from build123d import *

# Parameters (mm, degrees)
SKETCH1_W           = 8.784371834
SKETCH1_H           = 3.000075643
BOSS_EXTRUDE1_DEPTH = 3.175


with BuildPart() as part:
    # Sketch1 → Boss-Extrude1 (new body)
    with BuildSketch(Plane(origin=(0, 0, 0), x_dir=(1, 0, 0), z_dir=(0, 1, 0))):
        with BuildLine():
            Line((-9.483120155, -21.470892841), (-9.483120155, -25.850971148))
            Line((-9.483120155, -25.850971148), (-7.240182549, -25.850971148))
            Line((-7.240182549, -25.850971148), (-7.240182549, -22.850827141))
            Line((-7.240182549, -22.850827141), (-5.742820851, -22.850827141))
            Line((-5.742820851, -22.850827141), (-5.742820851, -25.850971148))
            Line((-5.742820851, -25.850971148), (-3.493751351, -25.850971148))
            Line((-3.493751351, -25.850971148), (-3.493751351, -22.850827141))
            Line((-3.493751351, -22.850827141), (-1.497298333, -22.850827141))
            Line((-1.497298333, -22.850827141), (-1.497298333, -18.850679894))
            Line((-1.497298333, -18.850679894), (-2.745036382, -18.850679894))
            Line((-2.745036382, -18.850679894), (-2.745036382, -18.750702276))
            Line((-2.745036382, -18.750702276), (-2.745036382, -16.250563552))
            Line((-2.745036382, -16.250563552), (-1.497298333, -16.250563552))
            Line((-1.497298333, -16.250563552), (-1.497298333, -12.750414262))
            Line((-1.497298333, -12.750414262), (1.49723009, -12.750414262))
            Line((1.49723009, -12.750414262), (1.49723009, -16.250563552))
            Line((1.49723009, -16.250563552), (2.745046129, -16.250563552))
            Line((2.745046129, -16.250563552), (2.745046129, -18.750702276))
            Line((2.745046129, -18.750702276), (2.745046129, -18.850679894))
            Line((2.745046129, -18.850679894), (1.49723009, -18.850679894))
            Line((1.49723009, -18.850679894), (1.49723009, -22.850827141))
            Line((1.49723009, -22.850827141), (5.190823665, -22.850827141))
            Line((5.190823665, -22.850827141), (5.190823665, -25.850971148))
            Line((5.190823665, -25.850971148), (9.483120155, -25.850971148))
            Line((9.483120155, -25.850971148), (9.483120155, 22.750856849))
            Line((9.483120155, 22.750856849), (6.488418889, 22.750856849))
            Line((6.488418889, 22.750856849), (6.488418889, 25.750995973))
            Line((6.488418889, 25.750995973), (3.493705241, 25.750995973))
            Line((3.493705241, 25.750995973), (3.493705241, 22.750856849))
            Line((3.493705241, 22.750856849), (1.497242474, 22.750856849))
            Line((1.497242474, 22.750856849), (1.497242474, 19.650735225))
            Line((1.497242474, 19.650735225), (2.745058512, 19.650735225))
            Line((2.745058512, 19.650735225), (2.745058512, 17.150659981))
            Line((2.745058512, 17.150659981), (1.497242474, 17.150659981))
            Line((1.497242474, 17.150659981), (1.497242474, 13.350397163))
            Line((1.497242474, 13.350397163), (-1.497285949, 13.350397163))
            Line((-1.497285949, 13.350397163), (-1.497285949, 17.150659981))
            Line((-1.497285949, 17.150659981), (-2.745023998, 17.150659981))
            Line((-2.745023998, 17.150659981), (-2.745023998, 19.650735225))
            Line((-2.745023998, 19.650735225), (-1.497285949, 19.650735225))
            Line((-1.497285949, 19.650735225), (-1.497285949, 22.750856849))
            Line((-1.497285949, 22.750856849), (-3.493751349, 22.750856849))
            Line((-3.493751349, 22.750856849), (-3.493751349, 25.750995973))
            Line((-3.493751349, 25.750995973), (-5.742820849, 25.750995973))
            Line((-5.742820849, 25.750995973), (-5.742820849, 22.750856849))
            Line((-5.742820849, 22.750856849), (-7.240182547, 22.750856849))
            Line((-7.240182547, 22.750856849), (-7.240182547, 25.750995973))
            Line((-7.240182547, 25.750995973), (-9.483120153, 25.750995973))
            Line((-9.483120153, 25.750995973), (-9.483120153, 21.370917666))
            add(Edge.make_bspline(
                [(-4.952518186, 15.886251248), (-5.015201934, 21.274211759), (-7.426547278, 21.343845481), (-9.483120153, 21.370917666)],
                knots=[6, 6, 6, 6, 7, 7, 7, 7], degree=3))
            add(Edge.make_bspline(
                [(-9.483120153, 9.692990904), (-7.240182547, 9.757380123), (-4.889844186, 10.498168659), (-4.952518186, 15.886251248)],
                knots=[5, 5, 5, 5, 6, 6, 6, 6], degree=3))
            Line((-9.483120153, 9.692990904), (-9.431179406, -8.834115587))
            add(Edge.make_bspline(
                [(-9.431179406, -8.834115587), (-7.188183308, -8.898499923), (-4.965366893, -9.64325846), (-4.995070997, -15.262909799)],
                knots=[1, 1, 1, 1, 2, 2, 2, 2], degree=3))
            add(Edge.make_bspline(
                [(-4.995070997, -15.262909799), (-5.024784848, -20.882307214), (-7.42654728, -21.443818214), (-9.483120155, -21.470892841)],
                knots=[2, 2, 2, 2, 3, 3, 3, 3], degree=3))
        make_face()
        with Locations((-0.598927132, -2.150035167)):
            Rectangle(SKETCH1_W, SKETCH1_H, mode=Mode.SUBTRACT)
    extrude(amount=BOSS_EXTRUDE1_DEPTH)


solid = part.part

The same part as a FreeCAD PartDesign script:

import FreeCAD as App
import Part
import Sketcher
Q = App.Units.Quantity

doc = App.newDocument("Part")
body = doc.addObject("PartDesign::Body", "Body")

# Sketch on XZ plane
sketch1 = doc.addObject("Sketcher::SketchObject", "Sketch")
body.addObject(sketch1)
sketch1.AttachmentSupport = (doc.XZ_Plane, [""])
sketch1.MapMode = "FlatFace"
sketch1.addGeometry(Part.LineSegment(App.Vector(-9.48312, 21.470893, 0), App.Vector(-9.48312, 25.850971, 0)), False)
sketch1.addGeometry(Part.LineSegment(App.Vector(-9.48312, 25.850971, 0), App.Vector(-7.240183, 25.850971, 0)), False)
sketch1.addGeometry(Part.LineSegment(App.Vector(-7.240183, 25.850971, 0), App.Vector(-7.240183, 22.850827, 0)), False)
sketch1.addGeometry(Part.LineSegment(App.Vector(-7.240183, 22.850827, 0), App.Vector(-5.742821, 22.850827, 0)), False)
sketch1.addGeometry(Part.LineSegment(App.Vector(-5.742821, 22.850827, 0), App.Vector(-5.742821, 25.850971, 0)), False)
sketch1.addGeometry(Part.LineSegment(App.Vector(-5.742821, 25.850971, 0), App.Vector(-3.493751, 25.850971, 0)), False)
sketch1.addGeometry(Part.LineSegment(App.Vector(-3.493751, 25.850971, 0), App.Vector(-3.493751, 22.850827, 0)), False)
sketch1.addGeometry(Part.LineSegment(App.Vector(-3.493751, 22.850827, 0), App.Vector(-1.497298, 22.850827, 0)), False)
sketch1.addGeometry(Part.LineSegment(App.Vector(-1.497298, 22.850827, 0), App.Vector(-1.497298, 18.85068, 0)), False)
sketch1.addGeometry(Part.LineSegment(App.Vector(-1.497298, 18.85068, 0), App.Vector(-2.745036, 18.85068, 0)), False)
sketch1.addGeometry(Part.LineSegment(App.Vector(-2.745036, 18.85068, 0), App.Vector(-2.745036, 16.250564, 0)), False)
sketch1.addGeometry(Part.LineSegment(App.Vector(-2.745036, 16.250564, 0), App.Vector(-1.497298, 16.250564, 0)), False)
sketch1.addGeometry(Part.LineSegment(App.Vector(-1.497298, 16.250564, 0), App.Vector(-1.497298, 12.750414, 0)), False)
sketch1.addGeometry(Part.LineSegment(App.Vector(-1.497298, 12.750414, 0), App.Vector(1.49723, 12.750414, 0)), False)
sketch1.addGeometry(Part.LineSegment(App.Vector(1.49723, 12.750414, 0), App.Vector(1.49723, 16.250564, 0)), False)
sketch1.addGeometry(Part.LineSegment(App.Vector(1.49723, 16.250564, 0), App.Vector(2.745046, 16.250564, 0)), False)
sketch1.addGeometry(Part.LineSegment(App.Vector(2.745046, 16.250564, 0), App.Vector(2.745046, 18.85068, 0)), False)
sketch1.addGeometry(Part.LineSegment(App.Vector(2.745046, 18.85068, 0), App.Vector(1.49723, 18.85068, 0)), False)
sketch1.addGeometry(Part.LineSegment(App.Vector(1.49723, 18.85068, 0), App.Vector(1.49723, 22.850827, 0)), False)
sketch1.addGeometry(Part.LineSegment(App.Vector(1.49723, 22.850827, 0), App.Vector(5.190824, 22.850827, 0)), False)
sketch1.addGeometry(Part.LineSegment(App.Vector(5.190824, 22.850827, 0), App.Vector(5.190824, 25.850971, 0)), False)
sketch1.addGeometry(Part.LineSegment(App.Vector(5.190824, 25.850971, 0), App.Vector(9.48312, 25.850971, 0)), False)
sketch1.addGeometry(Part.LineSegment(App.Vector(9.48312, 25.850971, 0), App.Vector(9.48312, -22.750857, 0)), False)
sketch1.addGeometry(Part.LineSegment(App.Vector(9.48312, -22.750857, 0), App.Vector(6.488419, -22.750857, 0)), False)
sketch1.addGeometry(Part.LineSegment(App.Vector(6.488419, -22.750857, 0), App.Vector(6.488419, -25.750996, 0)), False)
sketch1.addGeometry(Part.LineSegment(App.Vector(6.488419, -25.750996, 0), App.Vector(3.493705, -25.750996, 0)), False)
sketch1.addGeometry(Part.LineSegment(App.Vector(3.493705, -25.750996, 0), App.Vector(3.493705, -22.750857, 0)), False)
sketch1.addGeometry(Part.LineSegment(App.Vector(3.493705, -22.750857, 0), App.Vector(1.497242, -22.750857, 0)), False)
sketch1.addGeometry(Part.LineSegment(App.Vector(1.497242, -22.750857, 0), App.Vector(1.497242, -19.650735, 0)), False)
sketch1.addGeometry(Part.LineSegment(App.Vector(1.497242, -19.650735, 0), App.Vector(2.745059, -19.650735, 0)), False)
sketch1.addGeometry(Part.LineSegment(App.Vector(2.745059, -19.650735, 0), App.Vector(2.745059, -17.15066, 0)), False)
sketch1.addGeometry(Part.LineSegment(App.Vector(2.745059, -17.15066, 0), App.Vector(1.497242, -17.15066, 0)), False)
sketch1.addGeometry(Part.LineSegment(App.Vector(1.497242, -17.15066, 0), App.Vector(1.497242, -13.350397, 0)), False)
sketch1.addGeometry(Part.LineSegment(App.Vector(1.497242, -13.350397, 0), App.Vector(-1.497286, -13.350397, 0)), False)
sketch1.addGeometry(Part.LineSegment(App.Vector(-1.497286, -13.350397, 0), App.Vector(-1.497286, -17.15066, 0)), False)
sketch1.addGeometry(Part.LineSegment(App.Vector(-1.497286, -17.15066, 0), App.Vector(-2.745024, -17.15066, 0)), False)
sketch1.addGeometry(Part.LineSegment(App.Vector(-2.745024, -17.15066, 0), App.Vector(-2.745024, -19.650735, 0)), False)
sketch1.addGeometry(Part.LineSegment(App.Vector(-2.745024, -19.650735, 0), App.Vector(-1.497286, -19.650735, 0)), False)
sketch1.addGeometry(Part.LineSegment(App.Vector(-1.497286, -19.650735, 0), App.Vector(-1.497286, -22.750857, 0)), False)
sketch1.addGeometry(Part.LineSegment(App.Vector(-1.497286, -22.750857, 0), App.Vector(-3.493751, -22.750857, 0)), False)
sketch1.addGeometry(Part.LineSegment(App.Vector(-3.493751, -22.750857, 0), App.Vector(-3.493751, -25.750996, 0)), False)
sketch1.addGeometry(Part.LineSegment(App.Vector(-3.493751, -25.750996, 0), App.Vector(-5.742821, -25.750996, 0)), False)
sketch1.addGeometry(Part.LineSegment(App.Vector(-5.742821, -25.750996, 0), App.Vector(-5.742821, -22.750857, 0)), False)
sketch1.addGeometry(Part.LineSegment(App.Vector(-5.742821, -22.750857, 0), App.Vector(-7.240183, -22.750857, 0)), False)
sketch1.addGeometry(Part.LineSegment(App.Vector(-7.240183, -22.750857, 0), App.Vector(-7.240183, -25.750996, 0)), False)
sketch1.addGeometry(Part.LineSegment(App.Vector(-7.240183, -25.750996, 0), App.Vector(-9.48312, -25.750996, 0)), False)
sketch1.addGeometry(Part.LineSegment(App.Vector(-9.48312, -25.750996, 0), App.Vector(-9.48312, -21.370918, 0)), False)
sketch1.addGeometry(Part.BSplineCurve([App.Vector(-4.952518, -15.886251, 0), App.Vector(-5.015202, -21.274212, 0), App.Vector(-7.426547, -21.343845, 0), App.Vector(-9.48312, -21.370918, 0)], [4, 4], [6, 7], False, 3, [1, 1, 1, 1], False), False)
sketch1.addGeometry(Part.BSplineCurve([App.Vector(-9.48312, -9.692991, 0), App.Vector(-7.240183, -9.75738, 0), App.Vector(-4.889844, -10.498169, 0), App.Vector(-4.952518, -15.886251, 0)], [4, 4], [5, 6], False, 3, [1, 1, 1, 1], False), False)
sketch1.addGeometry(Part.LineSegment(App.Vector(-9.48312, -9.692991, 0), App.Vector(-9.431179, 8.834116, 0)), False)
sketch1.addGeometry(Part.BSplineCurve([App.Vector(-9.431179, 8.834116, 0), App.Vector(-7.188183, 8.8985, 0), App.Vector(-4.965367, 9.643258, 0), App.Vector(-4.995071, 15.26291, 0)], [4, 4], [1, 2], False, 3, [1, 1, 1, 1], False), False)
sketch1.addGeometry(Part.BSplineCurve([App.Vector(-4.995071, 15.26291, 0), App.Vector(-5.024785, 20.882307, 0), App.Vector(-7.426547, 21.443818, 0), App.Vector(-9.48312, 21.470893, 0)], [4, 4], [2, 3], False, 3, [1, 1, 1, 1], False), False)
sketch1.addGeometry(Part.LineSegment(App.Vector(3.793259, 3.650073, 0), App.Vector(-4.991113, 3.650073, 0)), False)
sketch1.addGeometry(Part.LineSegment(App.Vector(-4.991113, 3.650073, 0), App.Vector(-4.991113, 0.649997, 0)), False)
sketch1.addGeometry(Part.LineSegment(App.Vector(-4.991113, 0.649997, 0), App.Vector(3.793259, 0.649997, 0)), False)
sketch1.addGeometry(Part.LineSegment(App.Vector(3.793259, 0.649997, 0), App.Vector(3.793259, 3.650073, 0)), False)
sketch1.addConstraint(Sketcher.Constraint("Block", 47))
sketch1.addConstraint(Sketcher.Constraint("Block", 48))
sketch1.addConstraint(Sketcher.Constraint("Block", 50))
sketch1.addConstraint(Sketcher.Constraint("Block", 51))
sketch1.addConstraint(Sketcher.Constraint("Coincident", 0, 2, 1, 1))
sketch1.addConstraint(Sketcher.Constraint("Coincident", 1, 2, 2, 1))
sketch1.addConstraint(Sketcher.Constraint("Coincident", 2, 2, 3, 1))
sketch1.addConstraint(Sketcher.Constraint("Coincident", 3, 2, 4, 1))
sketch1.addConstraint(Sketcher.Constraint("Coincident", 4, 2, 5, 1))
sketch1.addConstraint(Sketcher.Constraint("Coincident", 5, 2, 6, 1))
sketch1.addConstraint(Sketcher.Constraint("Coincident", 6, 2, 7, 1))
sketch1.addConstraint(Sketcher.Constraint("Coincident", 7, 2, 8, 1))
sketch1.addConstraint(Sketcher.Constraint("Coincident", 8, 2, 9, 1))
sketch1.addConstraint(Sketcher.Constraint("Coincident", 9, 2, 10, 1))
sketch1.addConstraint(Sketcher.Constraint("Coincident", 10, 2, 11, 1))
sketch1.addConstraint(Sketcher.Constraint("Coincident", 11, 2, 12, 1))
sketch1.addConstraint(Sketcher.Constraint("Coincident", 12, 2, 13, 1))
sketch1.addConstraint(Sketcher.Constraint("Coincident", 13, 2, 14, 1))
sketch1.addConstraint(Sketcher.Constraint("Coincident", 14, 2, 15, 1))
sketch1.addConstraint(Sketcher.Constraint("Coincident", 15, 2, 16, 1))
sketch1.addConstraint(Sketcher.Constraint("Coincident", 16, 2, 17, 1))
sketch1.addConstraint(Sketcher.Constraint("Coincident", 17, 2, 18, 1))
sketch1.addConstraint(Sketcher.Constraint("Coincident", 18, 2, 19, 1))
sketch1.addConstraint(Sketcher.Constraint("Coincident", 19, 2, 20, 1))
sketch1.addConstraint(Sketcher.Constraint("Coincident", 20, 2, 21, 1))
sketch1.addConstraint(Sketcher.Constraint("Coincident", 21, 2, 22, 1))
sketch1.addConstraint(Sketcher.Constraint("Coincident", 22, 2, 23, 1))
sketch1.addConstraint(Sketcher.Constraint("Coincident", 23, 2, 24, 1))
sketch1.addConstraint(Sketcher.Constraint("Coincident", 24, 2, 25, 1))
sketch1.addConstraint(Sketcher.Constraint("Coincident", 25, 2, 26, 1))
sketch1.addConstraint(Sketcher.Constraint("Coincident", 26, 2, 27, 1))
sketch1.addConstraint(Sketcher.Constraint("Coincident", 27, 2, 28, 1))
sketch1.addConstraint(Sketcher.Constraint("Coincident", 28, 2, 29, 1))
sketch1.addConstraint(Sketcher.Constraint("Coincident", 29, 2, 30, 1))
sketch1.addConstraint(Sketcher.Constraint("Coincident", 30, 2, 31, 1))
sketch1.addConstraint(Sketcher.Constraint("Coincident", 31, 2, 32, 1))
sketch1.addConstraint(Sketcher.Constraint("Coincident", 32, 2, 33, 1))
sketch1.addConstraint(Sketcher.Constraint("Coincident", 33, 2, 34, 1))
sketch1.addConstraint(Sketcher.Constraint("Coincident", 34, 2, 35, 1))
sketch1.addConstraint(Sketcher.Constraint("Coincident", 35, 2, 36, 1))
sketch1.addConstraint(Sketcher.Constraint("Coincident", 36, 2, 37, 1))
sketch1.addConstraint(Sketcher.Constraint("Coincident", 37, 2, 38, 1))
sketch1.addConstraint(Sketcher.Constraint("Coincident", 38, 2, 39, 1))
sketch1.addConstraint(Sketcher.Constraint("Coincident", 39, 2, 40, 1))
sketch1.addConstraint(Sketcher.Constraint("Coincident", 40, 2, 41, 1))
sketch1.addConstraint(Sketcher.Constraint("Coincident", 41, 2, 42, 1))
sketch1.addConstraint(Sketcher.Constraint("Coincident", 42, 2, 43, 1))
sketch1.addConstraint(Sketcher.Constraint("Coincident", 43, 2, 44, 1))
sketch1.addConstraint(Sketcher.Constraint("Coincident", 44, 2, 45, 1))
sketch1.addConstraint(Sketcher.Constraint("Coincident", 45, 2, 46, 1))
sketch1.addConstraint(Sketcher.Constraint("Coincident", 46, 2, 47, 2))
sketch1.addConstraint(Sketcher.Constraint("Coincident", 48, 1, 49, 1))
sketch1.addConstraint(Sketcher.Constraint("Coincident", 49, 2, 50, 1))
sketch1.addConstraint(Sketcher.Constraint("Coincident", 51, 2, 0, 1))
sketch1.addConstraint(Sketcher.Constraint("Coincident", 52, 2, 53, 1))
sketch1.addConstraint(Sketcher.Constraint("Coincident", 53, 2, 54, 1))
sketch1.addConstraint(Sketcher.Constraint("Coincident", 54, 2, 55, 1))
sketch1.addConstraint(Sketcher.Constraint("Coincident", 55, 2, 52, 1))
sketch1.addConstraint(Sketcher.Constraint("Vertical", 0))
sketch1.addConstraint(Sketcher.Constraint("Horizontal", 1))
sketch1.addConstraint(Sketcher.Constraint("Vertical", 2))
sketch1.addConstraint(Sketcher.Constraint("Horizontal", 3))
sketch1.addConstraint(Sketcher.Constraint("Vertical", 4))
sketch1.addConstraint(Sketcher.Constraint("Horizontal", 5))
sketch1.addConstraint(Sketcher.Constraint("Vertical", 6))
sketch1.addConstraint(Sketcher.Constraint("Horizontal", 7))
sketch1.addConstraint(Sketcher.Constraint("Vertical", 8))
sketch1.addConstraint(Sketcher.Constraint("Horizontal", 9))
sketch1.addConstraint(Sketcher.Constraint("Vertical", 10))
sketch1.addConstraint(Sketcher.Constraint("Horizontal", 11))
sketch1.addConstraint(Sketcher.Constraint("Vertical", 12))
sketch1.addConstraint(Sketcher.Constraint("Horizontal", 13))
sketch1.addConstraint(Sketcher.Constraint("Vertical", 14))
sketch1.addConstraint(Sketcher.Constraint("Horizontal", 15))
sketch1.addConstraint(Sketcher.Constraint("Vertical", 16))
sketch1.addConstraint(Sketcher.Constraint("Horizontal", 17))
sketch1.addConstraint(Sketcher.Constraint("Vertical", 18))
sketch1.addConstraint(Sketcher.Constraint("Horizontal", 19))
sketch1.addConstraint(Sketcher.Constraint("Vertical", 20))
sketch1.addConstraint(Sketcher.Constraint("Horizontal", 21))
sketch1.addConstraint(Sketcher.Constraint("Vertical", 22))
sketch1.addConstraint(Sketcher.Constraint("Horizontal", 23))
sketch1.addConstraint(Sketcher.Constraint("Vertical", 24))
sketch1.addConstraint(Sketcher.Constraint("Horizontal", 25))
sketch1.addConstraint(Sketcher.Constraint("Vertical", 26))
sketch1.addConstraint(Sketcher.Constraint("Horizontal", 27))
sketch1.addConstraint(Sketcher.Constraint("Vertical", 28))
sketch1.addConstraint(Sketcher.Constraint("Horizontal", 29))
sketch1.addConstraint(Sketcher.Constraint("Vertical", 30))
sketch1.addConstraint(Sketcher.Constraint("Horizontal", 31))
sketch1.addConstraint(Sketcher.Constraint("Vertical", 32))
sketch1.addConstraint(Sketcher.Constraint("Horizontal", 33))
sketch1.addConstraint(Sketcher.Constraint("Vertical", 34))
sketch1.addConstraint(Sketcher.Constraint("Horizontal", 35))
sketch1.addConstraint(Sketcher.Constraint("Vertical", 36))
sketch1.addConstraint(Sketcher.Constraint("Horizontal", 37))
sketch1.addConstraint(Sketcher.Constraint("Vertical", 38))
sketch1.addConstraint(Sketcher.Constraint("Horizontal", 39))
sketch1.addConstraint(Sketcher.Constraint("Vertical", 40))
sketch1.addConstraint(Sketcher.Constraint("Horizontal", 41))
sketch1.addConstraint(Sketcher.Constraint("Vertical", 42))
sketch1.addConstraint(Sketcher.Constraint("Horizontal", 43))
sketch1.addConstraint(Sketcher.Constraint("Vertical", 44))
sketch1.addConstraint(Sketcher.Constraint("Horizontal", 45))
sketch1.addConstraint(Sketcher.Constraint("Vertical", 46))
sketch1.addConstraint(Sketcher.Constraint("Horizontal", 52))
sketch1.addConstraint(Sketcher.Constraint("Vertical", 53))
sketch1.addConstraint(Sketcher.Constraint("Horizontal", 54))
sketch1.addConstraint(Sketcher.Constraint("Vertical", 55))
sketch1.addConstraint(Sketcher.Constraint("Symmetric", 10, 2, 15, 2, -2))
sketch1.addConstraint(Sketcher.Constraint("Symmetric", 0, 2, 21, 2, -2))
sketch1.addConstraint(Sketcher.Constraint("Horizontal", 1, 2, 4, 2))
sketch1.addConstraint(Sketcher.Constraint("Horizontal", 3, 2, 6, 2))
sketch1.addConstraint(Sketcher.Constraint("Horizontal", 9, 2, 16, 2))
sketch1.addConstraint(Sketcher.Constraint("Horizontal", 7, 2, 18, 2))
sketch1.addConstraint(Sketcher.Constraint("Horizontal", 23, 2, 26, 2))
sketch1.addConstraint(Sketcher.Constraint("Horizontal", 31, 2, 34, 2))
sketch1.addConstraint(Sketcher.Constraint("Horizontal", 29, 2, 36, 2))
sketch1.addConstraint(Sketcher.Constraint("Horizontal", 27, 2, 38, 2))
sketch1.addConstraint(Sketcher.Constraint("Horizontal", 25, 2, 40, 2))
sketch1.addConstraint(Sketcher.Constraint("Horizontal", 39, 2, 42, 2))
sketch1.addConstraint(Sketcher.Constraint("Horizontal", 41, 2, 44, 2))
sketch1.addConstraint(Sketcher.Constraint("Vertical", 8, 2, 11, 2))
sketch1.addConstraint(Sketcher.Constraint("Vertical", 14, 2, 17, 2))
sketch1.addConstraint(Sketcher.Constraint("Vertical", 28, 2, 31, 2))
sketch1.addConstraint(Sketcher.Constraint("Vertical", 34, 2, 37, 2))
sketch1.addConstraint(Sketcher.Constraint("Vertical", 6, 2, 39, 2))
sketch1.addConstraint(Sketcher.Constraint("Vertical", 4, 2, 41, 2))
sketch1.addConstraint(Sketcher.Constraint("Vertical", 2, 2, 43, 2))
sketch1.addConstraint(Sketcher.Constraint("Equal", 17, 29))
sketch1.addConstraint(Sketcher.Constraint("Equal", 13, 33))
sketch1.addConstraint(Sketcher.Constraint("Equal", 11, 35))
sketch1.addConstraint(Sketcher.Constraint("Equal", 0, 46))
sketch1.addConstraint(Sketcher.Constraint("DistanceX", 23, 2, 23, 1, Q("2.994701 mm")))
sketch1.addConstraint(Sketcher.Constraint("DistanceX", 12, 2, 22, 2, Q("0.4322999 in")))
sketch1.addConstraint(Sketcher.Constraint("DistanceX", 3, 1, 3, 2, Q("1.497362 mm")))
sketch1.addConstraint(Sketcher.Constraint("DistanceX", 5, 1, 5, 2, Q("2.24907 mm")))
sketch1.addConstraint(Sketcher.Constraint("DistanceX", 9, 2, 9, 1, Q("1.247738 mm")))
sketch1.addConstraint(Sketcher.Constraint("DistanceX", 13, 1, 13, 2, Q("2.994528 mm")))
sketch1.addConstraint(Sketcher.Constraint("DistanceX", 52, 2, 52, 1, Q("8.784372 mm")))
sketch1.addConstraint(Sketcher.Constraint("DistanceY", 0, 1, 0, 2, Q("4.380078 mm")))
sketch1.addConstraint(Sketcher.Constraint("DistanceY", 12, 2, 12, 1, Q("3.500149 mm")))
sketch1.addConstraint(Sketcher.Constraint("DistanceY", 24, 2, 24, 1, Q("3.000139 mm")))
sketch1.addConstraint(Sketcher.Constraint("DistanceY", 28, 1, 28, 2, Q("3.100122 mm")))
sketch1.addConstraint(Sketcher.Constraint("DistanceX", 0, 2, 3, 2, Q("3.740299 mm")))
sketch1.addConstraint(Sketcher.Constraint("DistanceY", 49, 2, 12, 2, Q("3.916299 mm")))
sketch1.addConstraint(Sketcher.Constraint("DistanceX", 19, 1, 19, 2, Q("3.693594 mm")))
sketch1.addConstraint(Sketcher.Constraint("DistanceX", 25, 2, 25, 1, Q("2.994714 mm")))
sketch1.addConstraint(Sketcher.Constraint("DistanceX", 27, 2, 27, 1, Q("1.996463 mm")))
sketch1.addConstraint(Sketcher.Constraint("DistanceY", 2, 2, 2, 1, Q("3.000144 mm")))
sketch1.addConstraint(Sketcher.Constraint("DistanceY", 8, 2, 8, 1, Q("4.000147 mm")))
sketch1.addConstraint(Sketcher.Constraint("DistanceY", 30, 1, 30, 2, Q("2.500075 mm")))
sketch1.addConstraint(Sketcher.Constraint("DistanceY", 32, 1, 32, 2, Q("3.800263 mm")))
sketch1.addConstraint(Sketcher.Constraint("DistanceY", 53, 2, 53, 1, Q("3.000076 mm")))
sketch1.addConstraint(Sketcher.Constraint("DistanceX", -1, 1, 54, 2, Q("3.793259 mm")))
sketch1.addConstraint(Sketcher.Constraint("DistanceY", 52, 2, 12, 2, Q("9.100341 mm")))
pad1 = doc.addObject("PartDesign::Pad", "Pad")
body.addObject(pad1)
pad1.Profile = sketch1
pad1.Length = Q("0.125 in")
pad1.Reversed = True

doc.recompute()
